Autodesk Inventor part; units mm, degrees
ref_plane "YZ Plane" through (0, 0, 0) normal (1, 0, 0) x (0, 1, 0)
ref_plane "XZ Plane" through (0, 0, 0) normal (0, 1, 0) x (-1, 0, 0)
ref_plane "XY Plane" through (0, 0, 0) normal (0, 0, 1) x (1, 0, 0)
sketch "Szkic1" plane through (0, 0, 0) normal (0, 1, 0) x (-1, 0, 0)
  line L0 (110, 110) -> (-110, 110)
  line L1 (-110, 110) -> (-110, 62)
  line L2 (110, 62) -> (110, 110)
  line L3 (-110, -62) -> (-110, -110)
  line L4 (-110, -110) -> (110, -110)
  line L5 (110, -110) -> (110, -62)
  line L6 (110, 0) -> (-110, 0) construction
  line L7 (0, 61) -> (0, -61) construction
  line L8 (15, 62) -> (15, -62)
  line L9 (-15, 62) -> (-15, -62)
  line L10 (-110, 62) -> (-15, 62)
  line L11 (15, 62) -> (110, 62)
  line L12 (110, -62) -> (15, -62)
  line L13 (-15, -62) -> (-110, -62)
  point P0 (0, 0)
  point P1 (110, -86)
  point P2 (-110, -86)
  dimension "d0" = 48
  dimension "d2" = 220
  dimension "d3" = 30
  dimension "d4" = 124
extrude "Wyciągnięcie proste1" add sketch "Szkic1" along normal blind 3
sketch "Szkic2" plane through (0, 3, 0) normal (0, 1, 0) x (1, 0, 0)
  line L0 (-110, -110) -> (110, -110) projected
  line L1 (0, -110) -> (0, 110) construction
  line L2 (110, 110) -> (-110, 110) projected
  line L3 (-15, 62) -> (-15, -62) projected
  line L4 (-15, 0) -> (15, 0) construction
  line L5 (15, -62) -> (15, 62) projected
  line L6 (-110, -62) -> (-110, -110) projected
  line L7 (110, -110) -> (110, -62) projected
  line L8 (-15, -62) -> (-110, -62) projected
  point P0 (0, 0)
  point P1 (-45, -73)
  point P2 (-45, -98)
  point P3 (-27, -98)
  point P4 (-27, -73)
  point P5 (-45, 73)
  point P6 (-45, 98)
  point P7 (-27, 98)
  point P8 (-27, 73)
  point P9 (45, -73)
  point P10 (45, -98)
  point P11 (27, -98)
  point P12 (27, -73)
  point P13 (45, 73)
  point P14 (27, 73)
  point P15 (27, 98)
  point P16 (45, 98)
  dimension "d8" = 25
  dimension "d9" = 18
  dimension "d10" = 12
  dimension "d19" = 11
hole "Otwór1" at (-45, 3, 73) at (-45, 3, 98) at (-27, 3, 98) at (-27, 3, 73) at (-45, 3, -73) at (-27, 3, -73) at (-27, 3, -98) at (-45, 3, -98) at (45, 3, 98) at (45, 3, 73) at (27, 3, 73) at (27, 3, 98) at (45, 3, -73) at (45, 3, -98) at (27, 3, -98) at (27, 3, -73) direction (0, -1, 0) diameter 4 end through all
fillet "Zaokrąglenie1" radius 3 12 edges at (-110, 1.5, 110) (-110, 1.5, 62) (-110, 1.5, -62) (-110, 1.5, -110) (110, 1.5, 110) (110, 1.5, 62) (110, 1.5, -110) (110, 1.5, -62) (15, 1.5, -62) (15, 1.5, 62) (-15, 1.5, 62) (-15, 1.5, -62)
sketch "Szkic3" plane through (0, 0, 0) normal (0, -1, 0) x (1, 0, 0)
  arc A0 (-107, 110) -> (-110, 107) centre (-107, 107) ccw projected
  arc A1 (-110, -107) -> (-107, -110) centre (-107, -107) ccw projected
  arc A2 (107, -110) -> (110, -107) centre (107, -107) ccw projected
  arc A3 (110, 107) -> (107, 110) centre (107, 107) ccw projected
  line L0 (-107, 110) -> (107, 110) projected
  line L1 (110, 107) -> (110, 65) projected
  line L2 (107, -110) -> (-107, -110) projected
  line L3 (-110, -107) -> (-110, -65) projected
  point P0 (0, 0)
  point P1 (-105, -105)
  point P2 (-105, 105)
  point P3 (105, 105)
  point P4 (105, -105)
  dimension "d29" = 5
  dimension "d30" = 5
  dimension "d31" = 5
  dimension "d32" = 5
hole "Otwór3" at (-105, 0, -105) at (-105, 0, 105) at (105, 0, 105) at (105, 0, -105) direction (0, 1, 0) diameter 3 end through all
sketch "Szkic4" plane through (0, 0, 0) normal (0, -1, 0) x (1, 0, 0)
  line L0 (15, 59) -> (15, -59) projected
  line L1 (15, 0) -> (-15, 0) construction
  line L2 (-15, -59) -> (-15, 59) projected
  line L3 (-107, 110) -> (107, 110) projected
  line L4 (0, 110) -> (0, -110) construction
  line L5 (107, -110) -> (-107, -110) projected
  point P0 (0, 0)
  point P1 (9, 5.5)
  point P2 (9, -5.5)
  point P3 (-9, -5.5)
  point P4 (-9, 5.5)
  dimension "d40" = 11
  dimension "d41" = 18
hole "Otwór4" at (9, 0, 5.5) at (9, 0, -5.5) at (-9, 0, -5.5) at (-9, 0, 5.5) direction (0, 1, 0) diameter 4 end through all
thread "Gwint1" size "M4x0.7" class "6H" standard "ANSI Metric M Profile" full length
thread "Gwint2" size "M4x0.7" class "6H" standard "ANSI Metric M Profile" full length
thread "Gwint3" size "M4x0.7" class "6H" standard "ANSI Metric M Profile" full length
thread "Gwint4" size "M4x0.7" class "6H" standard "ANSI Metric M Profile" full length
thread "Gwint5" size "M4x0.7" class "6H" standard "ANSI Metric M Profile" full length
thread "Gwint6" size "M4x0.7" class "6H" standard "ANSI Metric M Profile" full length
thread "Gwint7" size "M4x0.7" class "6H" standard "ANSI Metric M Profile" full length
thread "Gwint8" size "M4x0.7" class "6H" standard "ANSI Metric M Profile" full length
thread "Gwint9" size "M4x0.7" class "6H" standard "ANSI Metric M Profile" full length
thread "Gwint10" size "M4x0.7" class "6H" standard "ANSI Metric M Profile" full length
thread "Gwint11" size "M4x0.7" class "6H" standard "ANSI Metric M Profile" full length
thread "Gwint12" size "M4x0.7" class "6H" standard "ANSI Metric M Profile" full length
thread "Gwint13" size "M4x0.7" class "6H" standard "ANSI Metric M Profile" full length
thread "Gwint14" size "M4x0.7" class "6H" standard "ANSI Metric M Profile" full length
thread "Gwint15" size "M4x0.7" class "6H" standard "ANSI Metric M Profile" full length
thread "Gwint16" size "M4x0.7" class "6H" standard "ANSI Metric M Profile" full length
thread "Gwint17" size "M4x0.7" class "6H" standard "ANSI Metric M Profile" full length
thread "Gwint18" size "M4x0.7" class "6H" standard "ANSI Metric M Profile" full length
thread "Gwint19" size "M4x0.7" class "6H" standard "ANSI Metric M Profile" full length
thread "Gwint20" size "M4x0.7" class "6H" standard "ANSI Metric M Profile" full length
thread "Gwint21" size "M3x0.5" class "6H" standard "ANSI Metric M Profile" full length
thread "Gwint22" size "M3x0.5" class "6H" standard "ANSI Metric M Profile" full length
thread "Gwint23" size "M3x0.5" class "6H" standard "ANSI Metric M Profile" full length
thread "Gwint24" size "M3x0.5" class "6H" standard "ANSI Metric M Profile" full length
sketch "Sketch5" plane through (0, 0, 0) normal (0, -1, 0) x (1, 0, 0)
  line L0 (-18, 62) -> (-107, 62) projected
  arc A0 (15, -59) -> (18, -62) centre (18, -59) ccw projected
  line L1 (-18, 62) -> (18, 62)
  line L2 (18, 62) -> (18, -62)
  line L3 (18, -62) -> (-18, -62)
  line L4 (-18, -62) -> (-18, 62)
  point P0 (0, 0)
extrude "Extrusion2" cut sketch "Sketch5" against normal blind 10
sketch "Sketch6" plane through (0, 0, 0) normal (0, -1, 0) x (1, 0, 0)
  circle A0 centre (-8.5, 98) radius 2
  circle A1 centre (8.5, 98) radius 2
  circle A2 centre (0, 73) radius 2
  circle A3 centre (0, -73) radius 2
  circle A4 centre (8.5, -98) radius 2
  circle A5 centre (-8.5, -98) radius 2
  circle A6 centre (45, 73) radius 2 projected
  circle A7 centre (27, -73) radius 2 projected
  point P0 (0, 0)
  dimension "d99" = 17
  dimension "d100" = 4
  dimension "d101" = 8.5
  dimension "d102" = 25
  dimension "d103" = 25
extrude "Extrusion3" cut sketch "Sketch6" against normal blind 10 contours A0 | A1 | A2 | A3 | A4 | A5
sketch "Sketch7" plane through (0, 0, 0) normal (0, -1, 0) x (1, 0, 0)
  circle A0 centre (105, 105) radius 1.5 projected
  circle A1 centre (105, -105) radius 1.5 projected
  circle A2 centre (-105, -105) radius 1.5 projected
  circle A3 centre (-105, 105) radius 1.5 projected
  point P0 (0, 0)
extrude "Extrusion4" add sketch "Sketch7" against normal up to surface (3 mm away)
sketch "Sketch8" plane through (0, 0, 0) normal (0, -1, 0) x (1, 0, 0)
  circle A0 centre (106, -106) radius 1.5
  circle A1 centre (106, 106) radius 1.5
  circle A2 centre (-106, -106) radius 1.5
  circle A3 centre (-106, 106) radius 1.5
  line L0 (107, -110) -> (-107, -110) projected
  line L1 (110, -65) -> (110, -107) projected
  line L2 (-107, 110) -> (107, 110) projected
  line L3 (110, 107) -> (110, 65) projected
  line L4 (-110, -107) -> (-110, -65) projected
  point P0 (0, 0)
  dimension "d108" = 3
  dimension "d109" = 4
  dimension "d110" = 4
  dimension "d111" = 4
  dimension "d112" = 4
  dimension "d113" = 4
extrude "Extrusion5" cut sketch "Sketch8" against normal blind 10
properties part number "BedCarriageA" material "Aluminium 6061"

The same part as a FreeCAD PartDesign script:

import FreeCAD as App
import Part
import Sketcher


def edges_at(feature, points):
    """Names of the edges that pass closest to the given points."""
    edges = feature.Shape.Edges
    near = lambda p: min(range(len(edges)), key=lambda i: edges[i].distToShape(Part.Vertex(*p))[0])
    return sorted({f"Edge{near(p) + 1}" for p in points})


def add_polygon(sketch, points):
    """Adds a closed chain of lines whose ends are joined by coincident constraints."""
    first, n = sketch.GeometryCount, len(points)
    for a, b in zip(points, points[1:] + points[:1]):
        sketch.addGeometry(Part.LineSegment(App.Vector(*a, 0), App.Vector(*b, 0)), False)
    for i in range(n):
        sketch.addConstraint(Sketcher.Constraint("Coincident", first + i, 2, first + (i + 1) % n, 1))

doc = App.newDocument("Part")
body = doc.addObject("PartDesign::Body", "Body")
body.AllowCompound = True

# Sketch on XZ plane
sketch1 = body.newObject("Sketcher::SketchObject", "Sketch")
sketch1.AttachmentSupport = (doc.getObject("XZ_Plane"), [""])
sketch1.MapMode = "FlatFace"
add_polygon(sketch1, [(-110, 62), (-110, 110), (110, 110), (110, 62), (15, 62), (15, -62), (110, -62), (110, -110), (-110, -110), (-110, -62), (-15, -62), (-15, 62)])  # lines 0-11
sketch1.addConstraint([
    Sketcher.Constraint("Vertical", 0),
    Sketcher.Constraint("Horizontal", 1),
    Sketcher.Constraint("Vertical", 2),
    Sketcher.Constraint("Horizontal", 3),
    Sketcher.Constraint("Vertical", 4),
    Sketcher.Constraint("Horizontal", 5),
    Sketcher.Constraint("Vertical", 6),
    Sketcher.Constraint("Horizontal", 7),
    Sketcher.Constraint("Vertical", 8),
    Sketcher.Constraint("Horizontal", 9),
    Sketcher.Constraint("Vertical", 10),
    Sketcher.Constraint("Horizontal", 11),
    Sketcher.Constraint("Symmetric", 0, 2, 6, 2, -1, 1),
    Sketcher.Constraint("Symmetric", 2, 2, 8, 2, -1, 1),
    Sketcher.Constraint("Symmetric", 4, 2, 10, 2, -1, 1),
    Sketcher.Constraint("Symmetric", 5, 2, 8, 2, -2),
    Sketcher.Constraint("DistanceX", 1, 1, 1, 2, 220.0),
    Sketcher.Constraint("DistanceY", 0, 1, 0, 2, 48.0),
    Sketcher.Constraint("DistanceY", 4, 2, 4, 1, 124.0),
    Sketcher.Constraint("DistanceX", 9, 2, 4, 2, 30.0),
])
pad1 = body.newObject("PartDesign::Pad", "Pad")
pad1.Profile = sketch1
pad1.Length = 3
pad1.Reversed = True

# Sketch on XZ plane
sketch2 = body.newObject("Sketcher::SketchObject", "Sketch001")
sketch2.AttachmentSupport = (doc.getObject("XZ_Plane"), [""])
sketch2.MapMode = "FlatFace"
sketch2.AttachmentOffset = App.Placement(App.Vector(0, 0, -3), App.Rotation())
sketch2.addGeometry([
    Part.Circle(App.Vector(-45, 73, 0), App.Vector(0, 0, 1), 2),  # 0
    Part.Circle(App.Vector(-45, 98, 0), App.Vector(0, 0, 1), 2),  # 1
    Part.Circle(App.Vector(-27, 98, 0), App.Vector(0, 0, 1), 2),  # 2
    Part.Circle(App.Vector(-27, 73, 0), App.Vector(0, 0, 1), 2),  # 3
    Part.Circle(App.Vector(-45, -73, 0), App.Vector(0, 0, 1), 2),  # 4
    Part.Circle(App.Vector(-27, -73, 0), App.Vector(0, 0, 1), 2),  # 5
    Part.Circle(App.Vector(-27, -98, 0), App.Vector(0, 0, 1), 2),  # 6
    Part.Circle(App.Vector(-45, -98, 0), App.Vector(0, 0, 1), 2),  # 7
    Part.Circle(App.Vector(45, 98, 0), App.Vector(0, 0, 1), 2),  # 8
    Part.Circle(App.Vector(45, 73, 0), App.Vector(0, 0, 1), 2),  # 9
    Part.Circle(App.Vector(27, 73, 0), App.Vector(0, 0, 1), 2),  # 10
    Part.Circle(App.Vector(27, 98, 0), App.Vector(0, 0, 1), 2),  # 11
    Part.Circle(App.Vector(45, -73, 0), App.Vector(0, 0, 1), 2),  # 12
    Part.Circle(App.Vector(45, -98, 0), App.Vector(0, 0, 1), 2),  # 13
    Part.Circle(App.Vector(27, -98, 0), App.Vector(0, 0, 1), 2),  # 14
    Part.Circle(App.Vector(27, -73, 0), App.Vector(0, 0, 1), 2),  # 15
], False)
sketch2.addConstraint([
    Sketcher.Constraint("Equal", 0, 1),
    Sketcher.Constraint("Equal", 1, 2),
    Sketcher.Constraint("Equal", 2, 3),
    Sketcher.Constraint("Equal", 3, 4),
    Sketcher.Constraint("Equal", 4, 5),
    Sketcher.Constraint("Equal", 5, 6),
    Sketcher.Constraint("Equal", 6, 7),
    Sketcher.Constraint("Equal", 7, 8),
    Sketcher.Constraint("Equal", 8, 9),
    Sketcher.Constraint("Equal", 9, 10),
    Sketcher.Constraint("Equal", 10, 11),
    Sketcher.Constraint("Equal", 11, 12),
    Sketcher.Constraint("Equal", 12, 13),
    Sketcher.Constraint("Equal", 13, 14),
    Sketcher.Constraint("Equal", 14, 15),
    Sketcher.Constraint("Symmetric", 7, 3, 8, 3, -1, 1),
    Sketcher.Constraint("Symmetric", 4, 3, 9, 3, -1, 1),
    Sketcher.Constraint("Symmetric", 5, 3, 10, 3, -1, 1),
    Sketcher.Constraint("Symmetric", 6, 3, 11, 3, -1, 1),
    Sketcher.Constraint("Symmetric", 0, 3, 12, 3, -1, 1),
    Sketcher.Constraint("Symmetric", 1, 3, 13, 3, -1, 1),
    Sketcher.Constraint("Symmetric", 2, 3, 14, 3, -1, 1),
    Sketcher.Constraint("Symmetric", 3, 3, 15, 3, -1, 1),
    Sketcher.Constraint("Symmetric", 1, 3, 8, 3, -2),
    Sketcher.Constraint("Symmetric", 0, 3, 9, 3, -2),
    Sketcher.Constraint("Symmetric", 3, 3, 10, 3, -2),
    Sketcher.Constraint("Symmetric", 2, 3, 11, 3, -2),
    Sketcher.Constraint("Horizontal", 1, 3, 2, 3),
    Sketcher.Constraint("Horizontal", 0, 3, 3, 3),
    Sketcher.Constraint("Vertical", 0, 3, 1, 3),
    Sketcher.Constraint("Vertical", 2, 3, 3, 3),
    Sketcher.Constraint("Diameter", 0, 4.0),
    Sketcher.Constraint("DistanceX", 0, 3, -1, 1, 45.0),
    Sketcher.Constraint("DistanceY", -1, 1, 0, 3, 73.0),
    Sketcher.Constraint("DistanceY", -1, 1, 1, 3, 98.0),
    Sketcher.Constraint("DistanceX", 2, 3, -1, 1, 27.0),
])
doc.recompute()
hole = body.newObject("PartDesign::Hole", "Hole")
hole.Profile = sketch2
hole.ThreadType = "None"
hole.Diameter = 4
hole.DepthType = "ThroughAll"
hole.Reversed = True
doc.recompute()

fillet = body.newObject("PartDesign::Fillet", "Fillet")
fillet.Base = (hole, edges_at(hole, [
    (-110, 1.5, 110),
    (-110, 1.5, 62),
    (-110, 1.5, -62),
    (-110, 1.5, -110),
    (110, 1.5, 110),
    (110, 1.5, 62),
    (110, 1.5, -110),
    (110, 1.5, -62),
    (15, 1.5, -62),
    (15, 1.5, 62),
    (-15, 1.5, 62),
    (-15, 1.5, -62),
]))
fillet.Radius = 3

# Sketch on XZ plane
sketch3 = body.newObject("Sketcher::SketchObject", "Sketch002")
sketch3.AttachmentSupport = (doc.getObject("XZ_Plane"), [""])
sketch3.MapMode = "FlatFace"
sketch3.addGeometry([
    Part.Circle(App.Vector(-105, -105, 0), App.Vector(0, 0, 1), 1.5),
    Part.Circle(App.Vector(-105, 105, 0), App.Vector(0, 0, 1), 1.5),
    Part.Circle(App.Vector(105, 105, 0), App.Vector(0, 0, 1), 1.5),
    Part.Circle(App.Vector(105, -105, 0), App.Vector(0, 0, 1), 1.5),
], False)
sketch3.addConstraint([
    Sketcher.Constraint("Equal", 0, 1),
    Sketcher.Constraint("Equal", 1, 2),
    Sketcher.Constraint("Equal", 2, 3),
    Sketcher.Constraint("Symmetric", 0, 3, 2, 3, -1, 1),
    Sketcher.Constraint("Symmetric", 1, 3, 3, 3, -1, 1),
    Sketcher.Constraint("Symmetric", 1, 3, 2, 3, -2),
    Sketcher.Constraint("Diameter", 0, 3.0),
    Sketcher.Constraint("DistanceX", 0, 3, -1, 1, 105.0),
    Sketcher.Constraint("DistanceY", 0, 3, -1, 1, 105.0),
])
doc.recompute()
hole2 = body.newObject("PartDesign::Hole", "Hole001")
hole2.Profile = sketch3
hole2.ThreadType = "None"
hole2.Diameter = 3
hole2.DepthType = "ThroughAll"

# Sketch on XZ plane
sketch4 = body.newObject("Sketcher::SketchObject", "Sketch003")
sketch4.AttachmentSupport = (doc.getObject("XZ_Plane"), [""])
sketch4.MapMode = "FlatFace"
sketch4.addGeometry([
    Part.Circle(App.Vector(9, 5.5, 0), App.Vector(0, 0, 1), 2),
    Part.Circle(App.Vector(9, -5.5, 0), App.Vector(0, 0, 1), 2),
    Part.Circle(App.Vector(-9, -5.5, 0), App.Vector(0, 0, 1), 2),
    Part.Circle(App.Vector(-9, 5.5, 0), App.Vector(0, 0, 1), 2),
], False)
sketch4.addConstraint([
    Sketcher.Constraint("Equal", 0, 1),
    Sketcher.Constraint("Equal", 1, 2),
    Sketcher.Constraint("Equal", 2, 3),
    Sketcher.Constraint("Symmetric", 0, 3, 2, 3, -1, 1),
    Sketcher.Constraint("Symmetric", 1, 3, 3, 3, -1, 1),
    Sketcher.Constraint("Symmetric", 1, 3, 2, 3, -2),
    Sketcher.Constraint("Diameter", 0, 4.0),
    Sketcher.Constraint("DistanceX", -1, 1, 0, 3, 9.0),
    Sketcher.Constraint("DistanceY", 1, 3, 0, 3, 11.0),
])
doc.recompute()
hole3 = body.newObject("PartDesign::Hole", "Hole002")
hole3.Profile = sketch4
hole3.ThreadType = "None"
hole3.Diameter = 4
hole3.DepthType = "ThroughAll"

# Sketch on XZ plane
sketch5 = body.newObject("Sketcher::SketchObject", "Sketch004")
sketch5.AttachmentSupport = (doc.getObject("XZ_Plane"), [""])
sketch5.MapMode = "FlatFace"
add_polygon(sketch5, [(18, 62), (-18, 62), (-18, -62), (18, -62)])  # lines 0-3
sketch5.addConstraint([
    Sketcher.Constraint("Horizontal", 0),
    Sketcher.Constraint("Vertical", 1),
    Sketcher.Constraint("Horizontal", 2),
    Sketcher.Constraint("Vertical", 3),
    Sketcher.Constraint("Symmetric", 0, 2, 2, 2, -1, 1),
    Sketcher.Constraint("DistanceX", 0, 2, 0, 1, 36.0),
    Sketcher.Constraint("DistanceY", 1, 2, 1, 1, 124.0),
])
pocket1 = body.newObject("PartDesign::Pocket", "Pocket")
pocket1.Profile = sketch5
pocket1.Length = 10

# Sketch on XZ plane
sketch6 = body.newObject("Sketcher::SketchObject", "Sketch005")
sketch6.AttachmentSupport = (doc.getObject("XZ_Plane"), [""])
sketch6.MapMode = "FlatFace"
sketch6.addGeometry([
    Part.Circle(App.Vector(-8.5, 98, 0), App.Vector(0, 0, 1), 2),  # 0
    Part.Circle(App.Vector(8.5, 98, 0), App.Vector(0, 0, 1), 2),  # 1
    Part.Circle(App.Vector(0, 73, 0), App.Vector(0, 0, 1), 2),  # 2
    Part.Circle(App.Vector(0, -73, 0), App.Vector(0, 0, 1), 2),  # 3
    Part.Circle(App.Vector(8.5, -98, 0), App.Vector(0, 0, 1), 2),  # 4
    Part.Circle(App.Vector(-8.5, -98, 0), App.Vector(0, 0, 1), 2),  # 5
], False)
sketch6.addConstraint([
    Sketcher.Constraint("Equal", 0, 1),
    Sketcher.Constraint("Equal", 1, 2),
    Sketcher.Constraint("Equal", 2, 3),
    Sketcher.Constraint("Equal", 3, 4),
    Sketcher.Constraint("Equal", 4, 5),
    Sketcher.Constraint("Symmetric", 2, 3, 3, 3, -1, 1),
    Sketcher.Constraint("Symmetric", 0, 3, 4, 3, -1, 1),
    Sketcher.Constraint("Symmetric", 1, 3, 5, 3, -1, 1),
    Sketcher.Constraint("Symmetric", 0, 3, 1, 3, -2),
    Sketcher.Constraint("PointOnObject", 2, 3, -2),
    Sketcher.Constraint("Diameter", 0, 4.0),
    Sketcher.Constraint("DistanceX", 0, 3, 1, 3, 17.0),
    Sketcher.Constraint("DistanceY", 2, 3, 0, 3, 25.0),
    Sketcher.Constraint("DistanceY", -1, 1, 0, 3, 98.0),
])
pocket2 = body.newObject("PartDesign::Pocket", "Pocket001")
pocket2.Profile = sketch6
pocket2.Length = 10

# Sketch on XZ plane
sketch7 = body.newObject("Sketcher::SketchObject", "Sketch006")
sketch7.AttachmentSupport = (doc.getObject("XZ_Plane"), [""])
sketch7.MapMode = "FlatFace"
sketch7.addGeometry([
    Part.Circle(App.Vector(105, 105, 0), App.Vector(0, 0, 1), 1.5),
    Part.Circle(App.Vector(105, -105, 0), App.Vector(0, 0, 1), 1.5),
    Part.Circle(App.Vector(-105, -105, 0), App.Vector(0, 0, 1), 1.5),
    Part.Circle(App.Vector(-105, 105, 0), App.Vector(0, 0, 1), 1.5),
], False)
sketch7.addConstraint([
    Sketcher.Constraint("Equal", 0, 1),
    Sketcher.Constraint("Equal", 1, 2),
    Sketcher.Constraint("Equal", 2, 3),
    Sketcher.Constraint("Symmetric", 0, 3, 2, 3, -1, 1),
    Sketcher.Constraint("Symmetric", 1, 3, 3, 3, -1, 1),
    Sketcher.Constraint("Symmetric", 1, 3, 2, 3, -2),
    Sketcher.Constraint("Diameter", 0, 3.0),
    Sketcher.Constraint("DistanceX", -1, 1, 0, 3, 105.0),
    Sketcher.Constraint("DistanceY", -1, 1, 0, 3, 105.0),
])
pad2 = body.newObject("PartDesign::Pad", "Pad001")
pad2.Profile = sketch7
pad2.Length = 3
pad2.Reversed = True

# Sketch on XZ plane
sketch8 = body.newObject("Sketcher::SketchObject", "Sketch007")
sketch8.AttachmentSupport = (doc.getObject("XZ_Plane"), [""])
sketch8.MapMode = "FlatFace"
sketch8.addGeometry([
    Part.Circle(App.Vector(106, -106, 0), App.Vector(0, 0, 1), 1.5),
    Part.Circle(App.Vector(106, 106, 0), App.Vector(0, 0, 1), 1.5),
    Part.Circle(App.Vector(-106, -106, 0), App.Vector(0, 0, 1), 1.5),
    Part.Circle(App.Vector(-106, 106, 0), App.Vector(0, 0, 1), 1.5),
], False)
sketch8.addConstraint([
    Sketcher.Constraint("Equal", 0, 1),
    Sketcher.Constraint("Equal", 1, 2),
    Sketcher.Constraint("Equal", 2, 3),
    Sketcher.Constraint("Symmetric", 1, 3, 2, 3, -1, 1),
    Sketcher.Constraint("Symmetric", 0, 3, 3, 3, -1, 1),
    Sketcher.Constraint("Symmetric", 0, 3, 2, 3, -2),
    Sketcher.Constraint("Diameter", 0, 3.0),
    Sketcher.Constraint("DistanceX", -1, 1, 0, 3, 106.0),
    Sketcher.Constraint("DistanceY", 0, 3, -1, 1, 106.0),
])
pocket3 = body.newObject("PartDesign::Pocket", "Pocket002")
pocket3.Profile = sketch8
pocket3.Length = 10

doc.recompute()
